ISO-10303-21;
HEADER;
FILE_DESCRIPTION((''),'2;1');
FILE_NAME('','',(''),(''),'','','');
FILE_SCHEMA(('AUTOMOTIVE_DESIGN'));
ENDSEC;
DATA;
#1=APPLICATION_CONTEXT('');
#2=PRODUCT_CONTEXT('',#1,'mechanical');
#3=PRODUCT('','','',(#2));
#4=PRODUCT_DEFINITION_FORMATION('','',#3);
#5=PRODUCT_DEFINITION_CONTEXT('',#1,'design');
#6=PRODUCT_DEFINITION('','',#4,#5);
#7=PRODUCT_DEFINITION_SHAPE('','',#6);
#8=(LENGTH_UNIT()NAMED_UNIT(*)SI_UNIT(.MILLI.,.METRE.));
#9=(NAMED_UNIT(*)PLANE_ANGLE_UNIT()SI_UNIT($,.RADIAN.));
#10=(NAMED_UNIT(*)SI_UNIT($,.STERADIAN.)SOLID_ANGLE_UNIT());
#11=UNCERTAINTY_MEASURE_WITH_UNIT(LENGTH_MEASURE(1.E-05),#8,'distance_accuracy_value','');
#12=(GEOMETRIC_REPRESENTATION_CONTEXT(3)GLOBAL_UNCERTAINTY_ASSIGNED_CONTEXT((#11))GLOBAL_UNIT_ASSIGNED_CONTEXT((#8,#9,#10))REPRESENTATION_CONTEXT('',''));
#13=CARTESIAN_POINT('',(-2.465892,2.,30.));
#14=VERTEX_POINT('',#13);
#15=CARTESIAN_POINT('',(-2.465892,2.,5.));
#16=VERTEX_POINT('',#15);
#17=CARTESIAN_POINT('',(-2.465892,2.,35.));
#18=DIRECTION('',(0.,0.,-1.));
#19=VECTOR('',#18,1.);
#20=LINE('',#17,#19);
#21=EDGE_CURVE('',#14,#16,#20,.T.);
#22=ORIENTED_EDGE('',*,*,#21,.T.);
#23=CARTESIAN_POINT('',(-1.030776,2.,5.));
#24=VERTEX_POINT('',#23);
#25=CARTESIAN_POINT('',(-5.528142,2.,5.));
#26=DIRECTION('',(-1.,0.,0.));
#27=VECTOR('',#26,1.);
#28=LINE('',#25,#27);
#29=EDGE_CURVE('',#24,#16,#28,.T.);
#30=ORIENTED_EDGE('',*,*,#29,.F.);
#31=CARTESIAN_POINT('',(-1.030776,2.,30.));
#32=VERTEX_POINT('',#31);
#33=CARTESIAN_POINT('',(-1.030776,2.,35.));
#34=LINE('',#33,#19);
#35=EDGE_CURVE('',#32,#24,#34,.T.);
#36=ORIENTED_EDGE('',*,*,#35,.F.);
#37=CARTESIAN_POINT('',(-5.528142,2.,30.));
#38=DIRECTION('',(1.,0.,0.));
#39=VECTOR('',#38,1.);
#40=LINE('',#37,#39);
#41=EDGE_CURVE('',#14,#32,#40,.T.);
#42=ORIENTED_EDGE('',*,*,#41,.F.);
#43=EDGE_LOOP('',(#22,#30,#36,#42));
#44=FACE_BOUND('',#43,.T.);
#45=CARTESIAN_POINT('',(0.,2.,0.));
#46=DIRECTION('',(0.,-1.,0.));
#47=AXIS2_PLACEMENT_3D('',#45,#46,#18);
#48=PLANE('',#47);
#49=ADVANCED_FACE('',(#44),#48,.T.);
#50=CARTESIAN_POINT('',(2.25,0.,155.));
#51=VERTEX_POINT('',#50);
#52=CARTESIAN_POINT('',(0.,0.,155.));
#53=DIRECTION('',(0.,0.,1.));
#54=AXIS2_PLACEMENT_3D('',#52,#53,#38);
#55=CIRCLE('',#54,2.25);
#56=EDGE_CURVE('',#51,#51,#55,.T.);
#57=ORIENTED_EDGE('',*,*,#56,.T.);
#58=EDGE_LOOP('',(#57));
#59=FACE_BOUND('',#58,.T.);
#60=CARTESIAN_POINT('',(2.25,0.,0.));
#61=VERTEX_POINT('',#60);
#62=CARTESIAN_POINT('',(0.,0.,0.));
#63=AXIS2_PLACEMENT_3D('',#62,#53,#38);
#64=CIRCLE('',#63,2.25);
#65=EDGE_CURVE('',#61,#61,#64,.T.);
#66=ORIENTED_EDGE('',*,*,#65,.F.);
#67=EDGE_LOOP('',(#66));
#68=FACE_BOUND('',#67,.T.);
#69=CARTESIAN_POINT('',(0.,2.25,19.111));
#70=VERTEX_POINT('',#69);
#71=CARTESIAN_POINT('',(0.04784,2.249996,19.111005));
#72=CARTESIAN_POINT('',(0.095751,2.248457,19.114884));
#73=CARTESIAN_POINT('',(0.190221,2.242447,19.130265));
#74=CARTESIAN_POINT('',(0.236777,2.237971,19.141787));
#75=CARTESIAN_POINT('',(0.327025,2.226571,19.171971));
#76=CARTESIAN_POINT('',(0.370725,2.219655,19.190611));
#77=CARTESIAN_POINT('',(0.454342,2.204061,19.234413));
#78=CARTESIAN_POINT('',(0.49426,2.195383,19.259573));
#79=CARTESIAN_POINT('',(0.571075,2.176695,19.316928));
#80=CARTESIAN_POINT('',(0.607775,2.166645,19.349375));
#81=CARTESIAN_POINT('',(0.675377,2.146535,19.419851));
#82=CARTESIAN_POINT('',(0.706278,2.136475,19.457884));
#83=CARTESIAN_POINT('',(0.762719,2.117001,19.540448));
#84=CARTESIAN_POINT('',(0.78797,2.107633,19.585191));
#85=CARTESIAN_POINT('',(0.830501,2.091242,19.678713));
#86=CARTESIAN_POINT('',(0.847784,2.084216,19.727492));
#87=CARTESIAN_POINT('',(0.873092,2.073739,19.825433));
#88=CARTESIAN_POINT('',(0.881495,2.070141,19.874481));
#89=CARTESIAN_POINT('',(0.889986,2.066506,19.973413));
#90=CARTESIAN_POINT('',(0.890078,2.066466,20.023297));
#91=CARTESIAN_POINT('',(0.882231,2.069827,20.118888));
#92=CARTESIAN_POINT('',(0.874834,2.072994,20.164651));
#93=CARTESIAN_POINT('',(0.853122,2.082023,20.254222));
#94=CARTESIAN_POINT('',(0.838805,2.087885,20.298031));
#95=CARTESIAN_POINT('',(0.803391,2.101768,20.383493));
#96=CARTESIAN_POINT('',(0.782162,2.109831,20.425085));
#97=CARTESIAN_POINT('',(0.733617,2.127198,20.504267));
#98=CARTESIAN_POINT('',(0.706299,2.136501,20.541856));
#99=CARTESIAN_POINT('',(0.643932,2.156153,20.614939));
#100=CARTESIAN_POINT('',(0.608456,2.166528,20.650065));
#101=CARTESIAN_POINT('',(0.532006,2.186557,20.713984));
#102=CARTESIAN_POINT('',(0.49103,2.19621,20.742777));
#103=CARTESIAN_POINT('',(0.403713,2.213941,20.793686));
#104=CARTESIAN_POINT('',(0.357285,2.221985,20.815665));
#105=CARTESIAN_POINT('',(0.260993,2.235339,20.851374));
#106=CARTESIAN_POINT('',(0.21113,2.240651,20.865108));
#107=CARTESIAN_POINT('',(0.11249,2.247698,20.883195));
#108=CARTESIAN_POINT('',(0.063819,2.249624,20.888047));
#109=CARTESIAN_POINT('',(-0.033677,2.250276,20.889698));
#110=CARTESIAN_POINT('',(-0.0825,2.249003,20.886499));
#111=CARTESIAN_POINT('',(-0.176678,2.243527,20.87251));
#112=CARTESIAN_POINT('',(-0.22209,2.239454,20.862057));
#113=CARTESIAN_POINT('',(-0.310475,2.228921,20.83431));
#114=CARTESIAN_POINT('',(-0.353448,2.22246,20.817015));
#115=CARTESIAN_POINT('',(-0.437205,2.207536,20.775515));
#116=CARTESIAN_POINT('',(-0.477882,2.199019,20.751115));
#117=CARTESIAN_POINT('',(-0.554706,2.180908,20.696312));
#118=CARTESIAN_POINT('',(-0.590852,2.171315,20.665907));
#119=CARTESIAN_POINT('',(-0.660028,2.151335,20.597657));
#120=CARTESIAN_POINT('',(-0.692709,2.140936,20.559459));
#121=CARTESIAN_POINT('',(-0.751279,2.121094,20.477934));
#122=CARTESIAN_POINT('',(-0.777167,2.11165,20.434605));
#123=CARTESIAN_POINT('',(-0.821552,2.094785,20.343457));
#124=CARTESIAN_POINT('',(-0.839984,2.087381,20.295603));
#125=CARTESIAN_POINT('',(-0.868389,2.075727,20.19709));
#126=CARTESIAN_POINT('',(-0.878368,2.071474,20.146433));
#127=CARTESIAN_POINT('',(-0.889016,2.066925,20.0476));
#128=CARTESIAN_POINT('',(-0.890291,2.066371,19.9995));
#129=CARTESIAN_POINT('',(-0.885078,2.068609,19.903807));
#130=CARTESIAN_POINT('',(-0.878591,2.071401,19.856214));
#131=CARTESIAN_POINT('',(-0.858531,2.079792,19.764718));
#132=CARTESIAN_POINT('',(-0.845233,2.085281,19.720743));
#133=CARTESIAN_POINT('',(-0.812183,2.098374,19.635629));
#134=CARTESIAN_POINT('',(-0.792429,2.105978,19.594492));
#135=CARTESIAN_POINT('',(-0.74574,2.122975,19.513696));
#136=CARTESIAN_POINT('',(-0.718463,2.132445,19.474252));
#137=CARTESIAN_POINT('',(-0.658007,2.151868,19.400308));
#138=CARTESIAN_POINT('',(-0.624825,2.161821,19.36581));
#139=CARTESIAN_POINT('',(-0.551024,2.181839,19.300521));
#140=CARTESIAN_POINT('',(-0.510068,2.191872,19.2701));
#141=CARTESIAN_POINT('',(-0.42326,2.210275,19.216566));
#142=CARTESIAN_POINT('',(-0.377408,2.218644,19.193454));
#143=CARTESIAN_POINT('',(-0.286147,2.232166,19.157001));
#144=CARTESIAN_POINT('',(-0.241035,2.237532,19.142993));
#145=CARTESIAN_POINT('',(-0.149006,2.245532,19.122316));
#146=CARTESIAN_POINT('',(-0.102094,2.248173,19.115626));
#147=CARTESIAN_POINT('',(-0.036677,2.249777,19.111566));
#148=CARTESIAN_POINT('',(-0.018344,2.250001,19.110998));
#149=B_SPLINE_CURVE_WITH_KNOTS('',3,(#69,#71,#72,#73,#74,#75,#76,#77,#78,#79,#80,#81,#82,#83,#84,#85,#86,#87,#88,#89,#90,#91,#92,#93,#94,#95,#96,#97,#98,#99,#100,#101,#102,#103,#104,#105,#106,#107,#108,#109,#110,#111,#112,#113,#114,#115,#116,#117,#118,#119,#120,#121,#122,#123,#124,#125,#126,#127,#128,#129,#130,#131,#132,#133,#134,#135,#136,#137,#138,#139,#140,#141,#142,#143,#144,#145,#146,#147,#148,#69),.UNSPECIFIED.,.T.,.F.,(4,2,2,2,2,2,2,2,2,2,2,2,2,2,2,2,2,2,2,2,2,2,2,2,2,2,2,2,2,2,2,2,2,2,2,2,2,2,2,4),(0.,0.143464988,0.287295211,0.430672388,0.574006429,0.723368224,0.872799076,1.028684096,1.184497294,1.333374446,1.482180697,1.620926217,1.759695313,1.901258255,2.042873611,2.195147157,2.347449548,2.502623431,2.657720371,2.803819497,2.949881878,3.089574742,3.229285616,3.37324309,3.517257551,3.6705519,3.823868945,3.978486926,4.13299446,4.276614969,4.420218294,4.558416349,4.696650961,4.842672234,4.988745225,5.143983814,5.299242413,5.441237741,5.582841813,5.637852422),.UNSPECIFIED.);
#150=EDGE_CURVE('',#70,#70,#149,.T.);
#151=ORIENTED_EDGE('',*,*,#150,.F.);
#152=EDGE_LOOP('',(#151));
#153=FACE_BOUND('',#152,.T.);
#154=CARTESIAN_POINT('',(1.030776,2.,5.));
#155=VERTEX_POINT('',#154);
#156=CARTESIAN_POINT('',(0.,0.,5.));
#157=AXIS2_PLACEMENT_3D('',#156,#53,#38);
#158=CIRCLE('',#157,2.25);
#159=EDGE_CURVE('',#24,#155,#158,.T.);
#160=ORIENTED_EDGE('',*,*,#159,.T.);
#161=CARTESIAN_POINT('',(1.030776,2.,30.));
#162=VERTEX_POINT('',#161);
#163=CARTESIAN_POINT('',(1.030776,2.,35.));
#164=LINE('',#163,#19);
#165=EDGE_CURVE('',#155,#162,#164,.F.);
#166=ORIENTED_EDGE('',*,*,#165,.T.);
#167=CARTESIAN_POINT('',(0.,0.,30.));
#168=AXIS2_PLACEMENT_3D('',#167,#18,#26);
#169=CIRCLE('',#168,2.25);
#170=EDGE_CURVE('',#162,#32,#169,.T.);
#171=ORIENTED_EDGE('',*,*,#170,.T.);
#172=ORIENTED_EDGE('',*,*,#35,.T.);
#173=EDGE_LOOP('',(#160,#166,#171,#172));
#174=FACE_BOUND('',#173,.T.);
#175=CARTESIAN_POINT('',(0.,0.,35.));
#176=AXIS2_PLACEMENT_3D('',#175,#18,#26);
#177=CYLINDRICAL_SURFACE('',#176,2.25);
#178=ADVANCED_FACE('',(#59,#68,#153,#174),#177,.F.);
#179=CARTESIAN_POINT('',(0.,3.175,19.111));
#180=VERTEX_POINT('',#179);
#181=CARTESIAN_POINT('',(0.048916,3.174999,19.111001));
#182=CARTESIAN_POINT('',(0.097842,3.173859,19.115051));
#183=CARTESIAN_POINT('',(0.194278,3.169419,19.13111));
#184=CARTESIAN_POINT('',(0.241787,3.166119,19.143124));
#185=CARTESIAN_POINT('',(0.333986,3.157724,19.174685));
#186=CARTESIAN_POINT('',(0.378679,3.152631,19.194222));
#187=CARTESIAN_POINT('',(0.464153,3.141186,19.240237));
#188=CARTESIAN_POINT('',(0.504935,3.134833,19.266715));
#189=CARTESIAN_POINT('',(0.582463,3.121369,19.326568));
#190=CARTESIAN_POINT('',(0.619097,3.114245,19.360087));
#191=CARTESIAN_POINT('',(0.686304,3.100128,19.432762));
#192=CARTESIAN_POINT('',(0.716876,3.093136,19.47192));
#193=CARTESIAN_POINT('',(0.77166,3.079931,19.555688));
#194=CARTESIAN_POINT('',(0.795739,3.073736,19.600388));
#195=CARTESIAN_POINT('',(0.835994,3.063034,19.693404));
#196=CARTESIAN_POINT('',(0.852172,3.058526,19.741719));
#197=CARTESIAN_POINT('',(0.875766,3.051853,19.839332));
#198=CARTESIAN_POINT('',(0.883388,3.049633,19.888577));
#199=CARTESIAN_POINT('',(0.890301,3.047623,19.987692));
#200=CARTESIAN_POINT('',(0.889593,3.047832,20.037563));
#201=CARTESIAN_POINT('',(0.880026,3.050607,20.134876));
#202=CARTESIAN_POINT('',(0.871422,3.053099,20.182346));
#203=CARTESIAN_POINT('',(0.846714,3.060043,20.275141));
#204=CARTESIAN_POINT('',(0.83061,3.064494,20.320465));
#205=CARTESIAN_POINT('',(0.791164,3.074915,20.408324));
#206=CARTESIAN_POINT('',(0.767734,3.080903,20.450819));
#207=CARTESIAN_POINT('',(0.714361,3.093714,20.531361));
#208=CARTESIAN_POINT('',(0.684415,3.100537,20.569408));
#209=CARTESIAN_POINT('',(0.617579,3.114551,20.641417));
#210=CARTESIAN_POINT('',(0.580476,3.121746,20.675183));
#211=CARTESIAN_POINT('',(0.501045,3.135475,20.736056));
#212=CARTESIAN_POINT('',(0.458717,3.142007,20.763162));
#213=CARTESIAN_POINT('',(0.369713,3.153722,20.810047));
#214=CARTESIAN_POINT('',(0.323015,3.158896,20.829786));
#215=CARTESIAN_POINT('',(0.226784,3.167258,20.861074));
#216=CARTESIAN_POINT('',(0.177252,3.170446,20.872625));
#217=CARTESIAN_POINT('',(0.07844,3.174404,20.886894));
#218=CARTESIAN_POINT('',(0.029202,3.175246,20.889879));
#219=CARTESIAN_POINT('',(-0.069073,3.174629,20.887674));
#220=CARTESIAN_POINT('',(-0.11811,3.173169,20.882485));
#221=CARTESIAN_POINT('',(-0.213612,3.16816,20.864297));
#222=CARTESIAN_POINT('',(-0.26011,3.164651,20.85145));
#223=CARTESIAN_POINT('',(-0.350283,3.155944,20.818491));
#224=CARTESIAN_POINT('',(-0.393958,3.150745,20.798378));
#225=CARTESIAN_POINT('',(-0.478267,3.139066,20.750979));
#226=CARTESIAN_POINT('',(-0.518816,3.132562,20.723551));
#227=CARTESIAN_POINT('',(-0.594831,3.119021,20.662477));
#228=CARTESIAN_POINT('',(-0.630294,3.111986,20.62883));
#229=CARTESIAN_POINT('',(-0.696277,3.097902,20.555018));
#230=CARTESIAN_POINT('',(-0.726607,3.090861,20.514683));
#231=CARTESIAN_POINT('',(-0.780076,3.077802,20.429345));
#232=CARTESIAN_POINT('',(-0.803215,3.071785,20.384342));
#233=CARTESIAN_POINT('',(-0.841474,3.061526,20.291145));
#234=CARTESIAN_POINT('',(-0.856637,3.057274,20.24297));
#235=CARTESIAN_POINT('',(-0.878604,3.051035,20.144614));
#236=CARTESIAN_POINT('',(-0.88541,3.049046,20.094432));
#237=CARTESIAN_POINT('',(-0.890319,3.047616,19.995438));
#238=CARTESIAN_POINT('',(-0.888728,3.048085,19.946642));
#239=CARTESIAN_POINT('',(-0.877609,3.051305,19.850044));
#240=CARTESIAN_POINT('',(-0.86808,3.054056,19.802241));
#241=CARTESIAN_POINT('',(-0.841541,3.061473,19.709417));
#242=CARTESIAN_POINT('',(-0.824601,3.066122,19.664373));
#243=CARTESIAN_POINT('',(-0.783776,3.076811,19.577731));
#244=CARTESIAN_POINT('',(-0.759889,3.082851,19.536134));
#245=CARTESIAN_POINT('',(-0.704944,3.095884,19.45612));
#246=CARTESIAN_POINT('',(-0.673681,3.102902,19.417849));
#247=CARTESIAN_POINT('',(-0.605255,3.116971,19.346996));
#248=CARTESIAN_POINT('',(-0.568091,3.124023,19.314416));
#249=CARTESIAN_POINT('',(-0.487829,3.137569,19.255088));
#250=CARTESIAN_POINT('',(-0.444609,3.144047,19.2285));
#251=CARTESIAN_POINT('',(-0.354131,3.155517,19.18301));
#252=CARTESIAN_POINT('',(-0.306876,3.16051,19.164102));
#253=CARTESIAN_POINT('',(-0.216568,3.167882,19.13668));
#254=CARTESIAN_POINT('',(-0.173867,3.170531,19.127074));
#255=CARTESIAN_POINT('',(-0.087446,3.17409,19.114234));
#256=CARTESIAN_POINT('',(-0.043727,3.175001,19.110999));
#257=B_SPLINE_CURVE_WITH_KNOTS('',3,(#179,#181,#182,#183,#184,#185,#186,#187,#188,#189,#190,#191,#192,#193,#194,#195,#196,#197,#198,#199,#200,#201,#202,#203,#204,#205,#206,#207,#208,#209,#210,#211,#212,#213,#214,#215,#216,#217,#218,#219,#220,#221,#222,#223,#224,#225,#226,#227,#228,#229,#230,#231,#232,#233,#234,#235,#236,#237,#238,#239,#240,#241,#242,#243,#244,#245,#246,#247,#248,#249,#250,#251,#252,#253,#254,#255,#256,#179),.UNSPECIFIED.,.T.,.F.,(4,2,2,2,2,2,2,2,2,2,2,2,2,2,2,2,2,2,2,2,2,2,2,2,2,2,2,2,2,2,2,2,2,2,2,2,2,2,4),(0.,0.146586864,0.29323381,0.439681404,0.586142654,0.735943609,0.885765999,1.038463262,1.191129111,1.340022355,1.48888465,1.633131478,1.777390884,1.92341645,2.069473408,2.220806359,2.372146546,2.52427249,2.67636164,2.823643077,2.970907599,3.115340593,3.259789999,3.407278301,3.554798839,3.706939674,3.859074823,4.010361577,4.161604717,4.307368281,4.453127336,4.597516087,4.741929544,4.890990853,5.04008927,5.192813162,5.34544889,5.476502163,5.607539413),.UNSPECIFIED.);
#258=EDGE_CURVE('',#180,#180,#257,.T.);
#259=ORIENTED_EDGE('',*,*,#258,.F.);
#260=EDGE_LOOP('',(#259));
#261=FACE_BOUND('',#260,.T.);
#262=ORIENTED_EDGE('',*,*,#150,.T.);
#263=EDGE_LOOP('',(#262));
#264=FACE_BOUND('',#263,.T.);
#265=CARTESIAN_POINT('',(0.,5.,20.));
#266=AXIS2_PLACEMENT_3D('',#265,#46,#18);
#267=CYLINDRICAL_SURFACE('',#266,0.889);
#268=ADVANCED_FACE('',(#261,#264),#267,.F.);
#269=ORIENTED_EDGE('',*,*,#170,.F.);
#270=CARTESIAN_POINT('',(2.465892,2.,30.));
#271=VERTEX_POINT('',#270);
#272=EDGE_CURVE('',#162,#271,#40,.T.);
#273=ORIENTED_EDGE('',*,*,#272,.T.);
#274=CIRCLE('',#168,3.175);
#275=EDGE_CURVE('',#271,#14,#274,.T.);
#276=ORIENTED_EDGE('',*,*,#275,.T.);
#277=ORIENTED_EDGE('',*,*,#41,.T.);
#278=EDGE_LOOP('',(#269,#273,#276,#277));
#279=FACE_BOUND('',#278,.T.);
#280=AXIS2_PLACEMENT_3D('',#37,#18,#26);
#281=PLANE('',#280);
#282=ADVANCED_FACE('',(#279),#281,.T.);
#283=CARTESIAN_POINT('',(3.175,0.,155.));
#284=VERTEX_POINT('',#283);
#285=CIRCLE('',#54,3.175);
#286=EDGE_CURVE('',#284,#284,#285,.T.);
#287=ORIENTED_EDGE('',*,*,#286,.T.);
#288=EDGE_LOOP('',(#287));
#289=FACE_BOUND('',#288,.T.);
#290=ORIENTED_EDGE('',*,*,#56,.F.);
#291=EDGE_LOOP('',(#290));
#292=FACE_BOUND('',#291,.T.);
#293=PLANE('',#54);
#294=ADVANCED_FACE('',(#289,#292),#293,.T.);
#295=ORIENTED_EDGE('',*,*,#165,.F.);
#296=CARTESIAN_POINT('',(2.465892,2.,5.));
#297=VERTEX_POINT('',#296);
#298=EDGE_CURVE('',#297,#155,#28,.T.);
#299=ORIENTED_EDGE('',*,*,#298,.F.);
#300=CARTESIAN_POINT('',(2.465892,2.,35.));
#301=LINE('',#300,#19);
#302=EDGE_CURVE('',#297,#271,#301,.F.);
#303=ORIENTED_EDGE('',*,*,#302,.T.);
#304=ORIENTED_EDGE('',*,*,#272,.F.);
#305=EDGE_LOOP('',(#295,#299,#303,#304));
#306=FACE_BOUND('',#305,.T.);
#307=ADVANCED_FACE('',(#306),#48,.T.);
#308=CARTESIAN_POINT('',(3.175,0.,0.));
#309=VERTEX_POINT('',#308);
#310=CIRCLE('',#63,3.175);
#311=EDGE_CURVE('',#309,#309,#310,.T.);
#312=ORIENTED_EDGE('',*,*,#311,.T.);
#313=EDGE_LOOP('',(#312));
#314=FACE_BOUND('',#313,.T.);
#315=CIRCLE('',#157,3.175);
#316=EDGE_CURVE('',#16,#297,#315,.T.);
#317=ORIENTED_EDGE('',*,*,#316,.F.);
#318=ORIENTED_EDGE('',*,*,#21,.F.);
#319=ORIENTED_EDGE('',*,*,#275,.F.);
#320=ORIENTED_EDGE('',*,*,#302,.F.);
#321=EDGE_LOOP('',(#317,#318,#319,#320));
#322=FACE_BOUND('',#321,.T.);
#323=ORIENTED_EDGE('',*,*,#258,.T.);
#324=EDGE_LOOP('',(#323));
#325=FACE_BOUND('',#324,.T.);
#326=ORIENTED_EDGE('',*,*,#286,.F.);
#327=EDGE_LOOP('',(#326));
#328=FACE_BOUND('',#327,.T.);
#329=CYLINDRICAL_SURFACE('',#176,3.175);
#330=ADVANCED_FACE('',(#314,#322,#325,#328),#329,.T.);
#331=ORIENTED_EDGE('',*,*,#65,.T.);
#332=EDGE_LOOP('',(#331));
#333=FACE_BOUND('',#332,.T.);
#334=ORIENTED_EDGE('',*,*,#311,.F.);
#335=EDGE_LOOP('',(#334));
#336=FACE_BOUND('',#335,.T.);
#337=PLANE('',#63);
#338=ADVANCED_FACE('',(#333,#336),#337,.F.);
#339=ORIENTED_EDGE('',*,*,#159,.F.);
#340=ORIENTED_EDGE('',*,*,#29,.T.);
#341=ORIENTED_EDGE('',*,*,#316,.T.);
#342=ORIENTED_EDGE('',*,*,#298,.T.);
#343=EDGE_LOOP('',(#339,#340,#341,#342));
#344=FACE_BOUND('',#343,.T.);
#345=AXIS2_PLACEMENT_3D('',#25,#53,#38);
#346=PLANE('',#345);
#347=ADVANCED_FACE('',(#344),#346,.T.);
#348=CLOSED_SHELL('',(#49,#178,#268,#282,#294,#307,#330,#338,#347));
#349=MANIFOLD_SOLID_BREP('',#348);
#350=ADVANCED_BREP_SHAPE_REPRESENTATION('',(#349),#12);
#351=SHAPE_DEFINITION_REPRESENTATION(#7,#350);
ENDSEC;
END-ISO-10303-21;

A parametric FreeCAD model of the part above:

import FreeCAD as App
import Part
import Sketcher

V = App.Vector

doc = App.newDocument("Part")
body = doc.addObject("PartDesign::Body", "Body")

sketch1 = doc.addObject("Sketcher::SketchObject", "Sketch")
body.addObject(sketch1)
sketch1.AttachmentSupport = (doc.XY_Plane, [""])
sketch1.MapMode = "FlatFace"
sketch1.addGeometry(Part.Circle(V(0, 0, 0), V(0, 0, 1), 3.175), False)
sketch1.addGeometry(Part.Circle(V(0, 0, 0), V(0, 0, 1), 2.25), False)
sketch1.addConstraint(Sketcher.Constraint("Coincident", 0, 3, -1, 1))
sketch1.addConstraint(Sketcher.Constraint("Coincident", 1, 3, -1, 1))
sketch1.addConstraint(Sketcher.Constraint("Diameter", 1, 4.5))
sketch1.addConstraint(Sketcher.Constraint("Diameter", 0, 6.35))
pad1 = doc.addObject("PartDesign::Pad", "Pad")
body.addObject(pad1)
pad1.Profile = sketch1
pad1.Length = 35

sketch2 = doc.addObject("Sketcher::SketchObject", "Sketch001")
body.addObject(sketch2)
sketch2.AttachmentSupport = (doc.XZ_Plane, [""])
sketch2.MapMode = "FlatFace"
sketch2.addGeometry(Part.LineSegment(V(-5.528142, 5, 0), V(-5.528142, 30, 0)), False)
sketch2.addGeometry(Part.LineSegment(V(-5.528142, 30, 0), V(7.501851, 30, 0)), False)
sketch2.addGeometry(Part.LineSegment(V(7.501851, 30, 0), V(7.501851, 5, 0)), False)
sketch2.addGeometry(Part.LineSegment(V(7.501851, 5, 0), V(-5.528142, 5, 0)), False)
sketch2.addConstraint(Sketcher.Constraint("Coincident", 0, 2, 1, 1))
sketch2.addConstraint(Sketcher.Constraint("Coincident", 1, 2, 2, 1))
sketch2.addConstraint(Sketcher.Constraint("Coincident", 2, 2, 3, 1))
sketch2.addConstraint(Sketcher.Constraint("Coincident", 3, 2, 0, 1))
sketch2.addConstraint(Sketcher.Constraint("Vertical", 0))
sketch2.addConstraint(Sketcher.Constraint("Horizontal", 1))
sketch2.addConstraint(Sketcher.Constraint("Vertical", 2))
sketch2.addConstraint(Sketcher.Constraint("Horizontal", 3))
sketch2.addConstraint(Sketcher.Constraint("DistanceY", 0, 1, 0, 2, 25.0))
sketch2.addConstraint(Sketcher.Constraint("DistanceY", -1, 1, 0, 2, 30.0))
sketch2.addConstraint(Sketcher.Constraint("DistanceX", 1, 1, 1, 2, 13.029994))
sketch2.addConstraint(Sketcher.Constraint("DistanceX", -1, 1, 1, 2, 7.501851))
pocket1 = doc.addObject("PartDesign::Pocket", "Pocket")
body.addObject(pocket1)
pocket1.Profile = sketch2
pocket1.Type = "TwoLengths"
pocket1.Length = 2
pocket1.Length2 = 5

sketch3 = doc.addObject("Sketcher::SketchObject", "Sketch002")
body.addObject(sketch3)
sketch3.AttachmentSupport = (doc.XZ_Plane, [""])
sketch3.MapMode = "FlatFace"
sketch3.AttachmentOffset = App.Placement(V(0, 0, -2), App.Rotation())
sketch3.addGeometry(Part.Circle(V(0, 20, 0), V(0, 0, 1), 0.889), False)
sketch3.addConstraint(Sketcher.Constraint("PointOnObject", 0, 3, -2))
sketch3.addConstraint(Sketcher.Constraint("Diameter", 0, 1.778))
sketch3.addConstraint(Sketcher.Constraint("DistanceY", -1, 1, 0, 3, 20.0))
pocket2 = doc.addObject("PartDesign::Pocket", "Pocket001")
body.addObject(pocket2)
pocket2.Profile = sketch3
pocket2.Length = 3

sketch4 = doc.addObject("Sketcher::SketchObject", "Sketch003")
body.addObject(sketch4)
sketch4.AttachmentSupport = (doc.XY_Plane, [""])
sketch4.MapMode = "FlatFace"
sketch4.AttachmentOffset = App.Placement(V(0, 0, 35), App.Rotation())
sketch4.addGeometry(Part.Circle(V(0, 0, 0), V(0, 0, 1), 3.175), False)
sketch4.addGeometry(Part.Circle(V(0, 0, 0), V(0, 0, 1), 2.25), False)
sketch4.addConstraint(Sketcher.Constraint("Coincident", 0, 3, -1, 1))
sketch4.addConstraint(Sketcher.Constraint("Coincident", 1, 3, -1, 1))
sketch4.addConstraint(Sketcher.Constraint("Diameter", 1, 4.5))
sketch4.addConstraint(Sketcher.Constraint("Diameter", 0, 6.35))
pad2 = doc.addObject("PartDesign::Pad", "Pad001")
body.addObject(pad2)
pad2.Profile = sketch4
pad2.Length = 120

doc.recompute()
